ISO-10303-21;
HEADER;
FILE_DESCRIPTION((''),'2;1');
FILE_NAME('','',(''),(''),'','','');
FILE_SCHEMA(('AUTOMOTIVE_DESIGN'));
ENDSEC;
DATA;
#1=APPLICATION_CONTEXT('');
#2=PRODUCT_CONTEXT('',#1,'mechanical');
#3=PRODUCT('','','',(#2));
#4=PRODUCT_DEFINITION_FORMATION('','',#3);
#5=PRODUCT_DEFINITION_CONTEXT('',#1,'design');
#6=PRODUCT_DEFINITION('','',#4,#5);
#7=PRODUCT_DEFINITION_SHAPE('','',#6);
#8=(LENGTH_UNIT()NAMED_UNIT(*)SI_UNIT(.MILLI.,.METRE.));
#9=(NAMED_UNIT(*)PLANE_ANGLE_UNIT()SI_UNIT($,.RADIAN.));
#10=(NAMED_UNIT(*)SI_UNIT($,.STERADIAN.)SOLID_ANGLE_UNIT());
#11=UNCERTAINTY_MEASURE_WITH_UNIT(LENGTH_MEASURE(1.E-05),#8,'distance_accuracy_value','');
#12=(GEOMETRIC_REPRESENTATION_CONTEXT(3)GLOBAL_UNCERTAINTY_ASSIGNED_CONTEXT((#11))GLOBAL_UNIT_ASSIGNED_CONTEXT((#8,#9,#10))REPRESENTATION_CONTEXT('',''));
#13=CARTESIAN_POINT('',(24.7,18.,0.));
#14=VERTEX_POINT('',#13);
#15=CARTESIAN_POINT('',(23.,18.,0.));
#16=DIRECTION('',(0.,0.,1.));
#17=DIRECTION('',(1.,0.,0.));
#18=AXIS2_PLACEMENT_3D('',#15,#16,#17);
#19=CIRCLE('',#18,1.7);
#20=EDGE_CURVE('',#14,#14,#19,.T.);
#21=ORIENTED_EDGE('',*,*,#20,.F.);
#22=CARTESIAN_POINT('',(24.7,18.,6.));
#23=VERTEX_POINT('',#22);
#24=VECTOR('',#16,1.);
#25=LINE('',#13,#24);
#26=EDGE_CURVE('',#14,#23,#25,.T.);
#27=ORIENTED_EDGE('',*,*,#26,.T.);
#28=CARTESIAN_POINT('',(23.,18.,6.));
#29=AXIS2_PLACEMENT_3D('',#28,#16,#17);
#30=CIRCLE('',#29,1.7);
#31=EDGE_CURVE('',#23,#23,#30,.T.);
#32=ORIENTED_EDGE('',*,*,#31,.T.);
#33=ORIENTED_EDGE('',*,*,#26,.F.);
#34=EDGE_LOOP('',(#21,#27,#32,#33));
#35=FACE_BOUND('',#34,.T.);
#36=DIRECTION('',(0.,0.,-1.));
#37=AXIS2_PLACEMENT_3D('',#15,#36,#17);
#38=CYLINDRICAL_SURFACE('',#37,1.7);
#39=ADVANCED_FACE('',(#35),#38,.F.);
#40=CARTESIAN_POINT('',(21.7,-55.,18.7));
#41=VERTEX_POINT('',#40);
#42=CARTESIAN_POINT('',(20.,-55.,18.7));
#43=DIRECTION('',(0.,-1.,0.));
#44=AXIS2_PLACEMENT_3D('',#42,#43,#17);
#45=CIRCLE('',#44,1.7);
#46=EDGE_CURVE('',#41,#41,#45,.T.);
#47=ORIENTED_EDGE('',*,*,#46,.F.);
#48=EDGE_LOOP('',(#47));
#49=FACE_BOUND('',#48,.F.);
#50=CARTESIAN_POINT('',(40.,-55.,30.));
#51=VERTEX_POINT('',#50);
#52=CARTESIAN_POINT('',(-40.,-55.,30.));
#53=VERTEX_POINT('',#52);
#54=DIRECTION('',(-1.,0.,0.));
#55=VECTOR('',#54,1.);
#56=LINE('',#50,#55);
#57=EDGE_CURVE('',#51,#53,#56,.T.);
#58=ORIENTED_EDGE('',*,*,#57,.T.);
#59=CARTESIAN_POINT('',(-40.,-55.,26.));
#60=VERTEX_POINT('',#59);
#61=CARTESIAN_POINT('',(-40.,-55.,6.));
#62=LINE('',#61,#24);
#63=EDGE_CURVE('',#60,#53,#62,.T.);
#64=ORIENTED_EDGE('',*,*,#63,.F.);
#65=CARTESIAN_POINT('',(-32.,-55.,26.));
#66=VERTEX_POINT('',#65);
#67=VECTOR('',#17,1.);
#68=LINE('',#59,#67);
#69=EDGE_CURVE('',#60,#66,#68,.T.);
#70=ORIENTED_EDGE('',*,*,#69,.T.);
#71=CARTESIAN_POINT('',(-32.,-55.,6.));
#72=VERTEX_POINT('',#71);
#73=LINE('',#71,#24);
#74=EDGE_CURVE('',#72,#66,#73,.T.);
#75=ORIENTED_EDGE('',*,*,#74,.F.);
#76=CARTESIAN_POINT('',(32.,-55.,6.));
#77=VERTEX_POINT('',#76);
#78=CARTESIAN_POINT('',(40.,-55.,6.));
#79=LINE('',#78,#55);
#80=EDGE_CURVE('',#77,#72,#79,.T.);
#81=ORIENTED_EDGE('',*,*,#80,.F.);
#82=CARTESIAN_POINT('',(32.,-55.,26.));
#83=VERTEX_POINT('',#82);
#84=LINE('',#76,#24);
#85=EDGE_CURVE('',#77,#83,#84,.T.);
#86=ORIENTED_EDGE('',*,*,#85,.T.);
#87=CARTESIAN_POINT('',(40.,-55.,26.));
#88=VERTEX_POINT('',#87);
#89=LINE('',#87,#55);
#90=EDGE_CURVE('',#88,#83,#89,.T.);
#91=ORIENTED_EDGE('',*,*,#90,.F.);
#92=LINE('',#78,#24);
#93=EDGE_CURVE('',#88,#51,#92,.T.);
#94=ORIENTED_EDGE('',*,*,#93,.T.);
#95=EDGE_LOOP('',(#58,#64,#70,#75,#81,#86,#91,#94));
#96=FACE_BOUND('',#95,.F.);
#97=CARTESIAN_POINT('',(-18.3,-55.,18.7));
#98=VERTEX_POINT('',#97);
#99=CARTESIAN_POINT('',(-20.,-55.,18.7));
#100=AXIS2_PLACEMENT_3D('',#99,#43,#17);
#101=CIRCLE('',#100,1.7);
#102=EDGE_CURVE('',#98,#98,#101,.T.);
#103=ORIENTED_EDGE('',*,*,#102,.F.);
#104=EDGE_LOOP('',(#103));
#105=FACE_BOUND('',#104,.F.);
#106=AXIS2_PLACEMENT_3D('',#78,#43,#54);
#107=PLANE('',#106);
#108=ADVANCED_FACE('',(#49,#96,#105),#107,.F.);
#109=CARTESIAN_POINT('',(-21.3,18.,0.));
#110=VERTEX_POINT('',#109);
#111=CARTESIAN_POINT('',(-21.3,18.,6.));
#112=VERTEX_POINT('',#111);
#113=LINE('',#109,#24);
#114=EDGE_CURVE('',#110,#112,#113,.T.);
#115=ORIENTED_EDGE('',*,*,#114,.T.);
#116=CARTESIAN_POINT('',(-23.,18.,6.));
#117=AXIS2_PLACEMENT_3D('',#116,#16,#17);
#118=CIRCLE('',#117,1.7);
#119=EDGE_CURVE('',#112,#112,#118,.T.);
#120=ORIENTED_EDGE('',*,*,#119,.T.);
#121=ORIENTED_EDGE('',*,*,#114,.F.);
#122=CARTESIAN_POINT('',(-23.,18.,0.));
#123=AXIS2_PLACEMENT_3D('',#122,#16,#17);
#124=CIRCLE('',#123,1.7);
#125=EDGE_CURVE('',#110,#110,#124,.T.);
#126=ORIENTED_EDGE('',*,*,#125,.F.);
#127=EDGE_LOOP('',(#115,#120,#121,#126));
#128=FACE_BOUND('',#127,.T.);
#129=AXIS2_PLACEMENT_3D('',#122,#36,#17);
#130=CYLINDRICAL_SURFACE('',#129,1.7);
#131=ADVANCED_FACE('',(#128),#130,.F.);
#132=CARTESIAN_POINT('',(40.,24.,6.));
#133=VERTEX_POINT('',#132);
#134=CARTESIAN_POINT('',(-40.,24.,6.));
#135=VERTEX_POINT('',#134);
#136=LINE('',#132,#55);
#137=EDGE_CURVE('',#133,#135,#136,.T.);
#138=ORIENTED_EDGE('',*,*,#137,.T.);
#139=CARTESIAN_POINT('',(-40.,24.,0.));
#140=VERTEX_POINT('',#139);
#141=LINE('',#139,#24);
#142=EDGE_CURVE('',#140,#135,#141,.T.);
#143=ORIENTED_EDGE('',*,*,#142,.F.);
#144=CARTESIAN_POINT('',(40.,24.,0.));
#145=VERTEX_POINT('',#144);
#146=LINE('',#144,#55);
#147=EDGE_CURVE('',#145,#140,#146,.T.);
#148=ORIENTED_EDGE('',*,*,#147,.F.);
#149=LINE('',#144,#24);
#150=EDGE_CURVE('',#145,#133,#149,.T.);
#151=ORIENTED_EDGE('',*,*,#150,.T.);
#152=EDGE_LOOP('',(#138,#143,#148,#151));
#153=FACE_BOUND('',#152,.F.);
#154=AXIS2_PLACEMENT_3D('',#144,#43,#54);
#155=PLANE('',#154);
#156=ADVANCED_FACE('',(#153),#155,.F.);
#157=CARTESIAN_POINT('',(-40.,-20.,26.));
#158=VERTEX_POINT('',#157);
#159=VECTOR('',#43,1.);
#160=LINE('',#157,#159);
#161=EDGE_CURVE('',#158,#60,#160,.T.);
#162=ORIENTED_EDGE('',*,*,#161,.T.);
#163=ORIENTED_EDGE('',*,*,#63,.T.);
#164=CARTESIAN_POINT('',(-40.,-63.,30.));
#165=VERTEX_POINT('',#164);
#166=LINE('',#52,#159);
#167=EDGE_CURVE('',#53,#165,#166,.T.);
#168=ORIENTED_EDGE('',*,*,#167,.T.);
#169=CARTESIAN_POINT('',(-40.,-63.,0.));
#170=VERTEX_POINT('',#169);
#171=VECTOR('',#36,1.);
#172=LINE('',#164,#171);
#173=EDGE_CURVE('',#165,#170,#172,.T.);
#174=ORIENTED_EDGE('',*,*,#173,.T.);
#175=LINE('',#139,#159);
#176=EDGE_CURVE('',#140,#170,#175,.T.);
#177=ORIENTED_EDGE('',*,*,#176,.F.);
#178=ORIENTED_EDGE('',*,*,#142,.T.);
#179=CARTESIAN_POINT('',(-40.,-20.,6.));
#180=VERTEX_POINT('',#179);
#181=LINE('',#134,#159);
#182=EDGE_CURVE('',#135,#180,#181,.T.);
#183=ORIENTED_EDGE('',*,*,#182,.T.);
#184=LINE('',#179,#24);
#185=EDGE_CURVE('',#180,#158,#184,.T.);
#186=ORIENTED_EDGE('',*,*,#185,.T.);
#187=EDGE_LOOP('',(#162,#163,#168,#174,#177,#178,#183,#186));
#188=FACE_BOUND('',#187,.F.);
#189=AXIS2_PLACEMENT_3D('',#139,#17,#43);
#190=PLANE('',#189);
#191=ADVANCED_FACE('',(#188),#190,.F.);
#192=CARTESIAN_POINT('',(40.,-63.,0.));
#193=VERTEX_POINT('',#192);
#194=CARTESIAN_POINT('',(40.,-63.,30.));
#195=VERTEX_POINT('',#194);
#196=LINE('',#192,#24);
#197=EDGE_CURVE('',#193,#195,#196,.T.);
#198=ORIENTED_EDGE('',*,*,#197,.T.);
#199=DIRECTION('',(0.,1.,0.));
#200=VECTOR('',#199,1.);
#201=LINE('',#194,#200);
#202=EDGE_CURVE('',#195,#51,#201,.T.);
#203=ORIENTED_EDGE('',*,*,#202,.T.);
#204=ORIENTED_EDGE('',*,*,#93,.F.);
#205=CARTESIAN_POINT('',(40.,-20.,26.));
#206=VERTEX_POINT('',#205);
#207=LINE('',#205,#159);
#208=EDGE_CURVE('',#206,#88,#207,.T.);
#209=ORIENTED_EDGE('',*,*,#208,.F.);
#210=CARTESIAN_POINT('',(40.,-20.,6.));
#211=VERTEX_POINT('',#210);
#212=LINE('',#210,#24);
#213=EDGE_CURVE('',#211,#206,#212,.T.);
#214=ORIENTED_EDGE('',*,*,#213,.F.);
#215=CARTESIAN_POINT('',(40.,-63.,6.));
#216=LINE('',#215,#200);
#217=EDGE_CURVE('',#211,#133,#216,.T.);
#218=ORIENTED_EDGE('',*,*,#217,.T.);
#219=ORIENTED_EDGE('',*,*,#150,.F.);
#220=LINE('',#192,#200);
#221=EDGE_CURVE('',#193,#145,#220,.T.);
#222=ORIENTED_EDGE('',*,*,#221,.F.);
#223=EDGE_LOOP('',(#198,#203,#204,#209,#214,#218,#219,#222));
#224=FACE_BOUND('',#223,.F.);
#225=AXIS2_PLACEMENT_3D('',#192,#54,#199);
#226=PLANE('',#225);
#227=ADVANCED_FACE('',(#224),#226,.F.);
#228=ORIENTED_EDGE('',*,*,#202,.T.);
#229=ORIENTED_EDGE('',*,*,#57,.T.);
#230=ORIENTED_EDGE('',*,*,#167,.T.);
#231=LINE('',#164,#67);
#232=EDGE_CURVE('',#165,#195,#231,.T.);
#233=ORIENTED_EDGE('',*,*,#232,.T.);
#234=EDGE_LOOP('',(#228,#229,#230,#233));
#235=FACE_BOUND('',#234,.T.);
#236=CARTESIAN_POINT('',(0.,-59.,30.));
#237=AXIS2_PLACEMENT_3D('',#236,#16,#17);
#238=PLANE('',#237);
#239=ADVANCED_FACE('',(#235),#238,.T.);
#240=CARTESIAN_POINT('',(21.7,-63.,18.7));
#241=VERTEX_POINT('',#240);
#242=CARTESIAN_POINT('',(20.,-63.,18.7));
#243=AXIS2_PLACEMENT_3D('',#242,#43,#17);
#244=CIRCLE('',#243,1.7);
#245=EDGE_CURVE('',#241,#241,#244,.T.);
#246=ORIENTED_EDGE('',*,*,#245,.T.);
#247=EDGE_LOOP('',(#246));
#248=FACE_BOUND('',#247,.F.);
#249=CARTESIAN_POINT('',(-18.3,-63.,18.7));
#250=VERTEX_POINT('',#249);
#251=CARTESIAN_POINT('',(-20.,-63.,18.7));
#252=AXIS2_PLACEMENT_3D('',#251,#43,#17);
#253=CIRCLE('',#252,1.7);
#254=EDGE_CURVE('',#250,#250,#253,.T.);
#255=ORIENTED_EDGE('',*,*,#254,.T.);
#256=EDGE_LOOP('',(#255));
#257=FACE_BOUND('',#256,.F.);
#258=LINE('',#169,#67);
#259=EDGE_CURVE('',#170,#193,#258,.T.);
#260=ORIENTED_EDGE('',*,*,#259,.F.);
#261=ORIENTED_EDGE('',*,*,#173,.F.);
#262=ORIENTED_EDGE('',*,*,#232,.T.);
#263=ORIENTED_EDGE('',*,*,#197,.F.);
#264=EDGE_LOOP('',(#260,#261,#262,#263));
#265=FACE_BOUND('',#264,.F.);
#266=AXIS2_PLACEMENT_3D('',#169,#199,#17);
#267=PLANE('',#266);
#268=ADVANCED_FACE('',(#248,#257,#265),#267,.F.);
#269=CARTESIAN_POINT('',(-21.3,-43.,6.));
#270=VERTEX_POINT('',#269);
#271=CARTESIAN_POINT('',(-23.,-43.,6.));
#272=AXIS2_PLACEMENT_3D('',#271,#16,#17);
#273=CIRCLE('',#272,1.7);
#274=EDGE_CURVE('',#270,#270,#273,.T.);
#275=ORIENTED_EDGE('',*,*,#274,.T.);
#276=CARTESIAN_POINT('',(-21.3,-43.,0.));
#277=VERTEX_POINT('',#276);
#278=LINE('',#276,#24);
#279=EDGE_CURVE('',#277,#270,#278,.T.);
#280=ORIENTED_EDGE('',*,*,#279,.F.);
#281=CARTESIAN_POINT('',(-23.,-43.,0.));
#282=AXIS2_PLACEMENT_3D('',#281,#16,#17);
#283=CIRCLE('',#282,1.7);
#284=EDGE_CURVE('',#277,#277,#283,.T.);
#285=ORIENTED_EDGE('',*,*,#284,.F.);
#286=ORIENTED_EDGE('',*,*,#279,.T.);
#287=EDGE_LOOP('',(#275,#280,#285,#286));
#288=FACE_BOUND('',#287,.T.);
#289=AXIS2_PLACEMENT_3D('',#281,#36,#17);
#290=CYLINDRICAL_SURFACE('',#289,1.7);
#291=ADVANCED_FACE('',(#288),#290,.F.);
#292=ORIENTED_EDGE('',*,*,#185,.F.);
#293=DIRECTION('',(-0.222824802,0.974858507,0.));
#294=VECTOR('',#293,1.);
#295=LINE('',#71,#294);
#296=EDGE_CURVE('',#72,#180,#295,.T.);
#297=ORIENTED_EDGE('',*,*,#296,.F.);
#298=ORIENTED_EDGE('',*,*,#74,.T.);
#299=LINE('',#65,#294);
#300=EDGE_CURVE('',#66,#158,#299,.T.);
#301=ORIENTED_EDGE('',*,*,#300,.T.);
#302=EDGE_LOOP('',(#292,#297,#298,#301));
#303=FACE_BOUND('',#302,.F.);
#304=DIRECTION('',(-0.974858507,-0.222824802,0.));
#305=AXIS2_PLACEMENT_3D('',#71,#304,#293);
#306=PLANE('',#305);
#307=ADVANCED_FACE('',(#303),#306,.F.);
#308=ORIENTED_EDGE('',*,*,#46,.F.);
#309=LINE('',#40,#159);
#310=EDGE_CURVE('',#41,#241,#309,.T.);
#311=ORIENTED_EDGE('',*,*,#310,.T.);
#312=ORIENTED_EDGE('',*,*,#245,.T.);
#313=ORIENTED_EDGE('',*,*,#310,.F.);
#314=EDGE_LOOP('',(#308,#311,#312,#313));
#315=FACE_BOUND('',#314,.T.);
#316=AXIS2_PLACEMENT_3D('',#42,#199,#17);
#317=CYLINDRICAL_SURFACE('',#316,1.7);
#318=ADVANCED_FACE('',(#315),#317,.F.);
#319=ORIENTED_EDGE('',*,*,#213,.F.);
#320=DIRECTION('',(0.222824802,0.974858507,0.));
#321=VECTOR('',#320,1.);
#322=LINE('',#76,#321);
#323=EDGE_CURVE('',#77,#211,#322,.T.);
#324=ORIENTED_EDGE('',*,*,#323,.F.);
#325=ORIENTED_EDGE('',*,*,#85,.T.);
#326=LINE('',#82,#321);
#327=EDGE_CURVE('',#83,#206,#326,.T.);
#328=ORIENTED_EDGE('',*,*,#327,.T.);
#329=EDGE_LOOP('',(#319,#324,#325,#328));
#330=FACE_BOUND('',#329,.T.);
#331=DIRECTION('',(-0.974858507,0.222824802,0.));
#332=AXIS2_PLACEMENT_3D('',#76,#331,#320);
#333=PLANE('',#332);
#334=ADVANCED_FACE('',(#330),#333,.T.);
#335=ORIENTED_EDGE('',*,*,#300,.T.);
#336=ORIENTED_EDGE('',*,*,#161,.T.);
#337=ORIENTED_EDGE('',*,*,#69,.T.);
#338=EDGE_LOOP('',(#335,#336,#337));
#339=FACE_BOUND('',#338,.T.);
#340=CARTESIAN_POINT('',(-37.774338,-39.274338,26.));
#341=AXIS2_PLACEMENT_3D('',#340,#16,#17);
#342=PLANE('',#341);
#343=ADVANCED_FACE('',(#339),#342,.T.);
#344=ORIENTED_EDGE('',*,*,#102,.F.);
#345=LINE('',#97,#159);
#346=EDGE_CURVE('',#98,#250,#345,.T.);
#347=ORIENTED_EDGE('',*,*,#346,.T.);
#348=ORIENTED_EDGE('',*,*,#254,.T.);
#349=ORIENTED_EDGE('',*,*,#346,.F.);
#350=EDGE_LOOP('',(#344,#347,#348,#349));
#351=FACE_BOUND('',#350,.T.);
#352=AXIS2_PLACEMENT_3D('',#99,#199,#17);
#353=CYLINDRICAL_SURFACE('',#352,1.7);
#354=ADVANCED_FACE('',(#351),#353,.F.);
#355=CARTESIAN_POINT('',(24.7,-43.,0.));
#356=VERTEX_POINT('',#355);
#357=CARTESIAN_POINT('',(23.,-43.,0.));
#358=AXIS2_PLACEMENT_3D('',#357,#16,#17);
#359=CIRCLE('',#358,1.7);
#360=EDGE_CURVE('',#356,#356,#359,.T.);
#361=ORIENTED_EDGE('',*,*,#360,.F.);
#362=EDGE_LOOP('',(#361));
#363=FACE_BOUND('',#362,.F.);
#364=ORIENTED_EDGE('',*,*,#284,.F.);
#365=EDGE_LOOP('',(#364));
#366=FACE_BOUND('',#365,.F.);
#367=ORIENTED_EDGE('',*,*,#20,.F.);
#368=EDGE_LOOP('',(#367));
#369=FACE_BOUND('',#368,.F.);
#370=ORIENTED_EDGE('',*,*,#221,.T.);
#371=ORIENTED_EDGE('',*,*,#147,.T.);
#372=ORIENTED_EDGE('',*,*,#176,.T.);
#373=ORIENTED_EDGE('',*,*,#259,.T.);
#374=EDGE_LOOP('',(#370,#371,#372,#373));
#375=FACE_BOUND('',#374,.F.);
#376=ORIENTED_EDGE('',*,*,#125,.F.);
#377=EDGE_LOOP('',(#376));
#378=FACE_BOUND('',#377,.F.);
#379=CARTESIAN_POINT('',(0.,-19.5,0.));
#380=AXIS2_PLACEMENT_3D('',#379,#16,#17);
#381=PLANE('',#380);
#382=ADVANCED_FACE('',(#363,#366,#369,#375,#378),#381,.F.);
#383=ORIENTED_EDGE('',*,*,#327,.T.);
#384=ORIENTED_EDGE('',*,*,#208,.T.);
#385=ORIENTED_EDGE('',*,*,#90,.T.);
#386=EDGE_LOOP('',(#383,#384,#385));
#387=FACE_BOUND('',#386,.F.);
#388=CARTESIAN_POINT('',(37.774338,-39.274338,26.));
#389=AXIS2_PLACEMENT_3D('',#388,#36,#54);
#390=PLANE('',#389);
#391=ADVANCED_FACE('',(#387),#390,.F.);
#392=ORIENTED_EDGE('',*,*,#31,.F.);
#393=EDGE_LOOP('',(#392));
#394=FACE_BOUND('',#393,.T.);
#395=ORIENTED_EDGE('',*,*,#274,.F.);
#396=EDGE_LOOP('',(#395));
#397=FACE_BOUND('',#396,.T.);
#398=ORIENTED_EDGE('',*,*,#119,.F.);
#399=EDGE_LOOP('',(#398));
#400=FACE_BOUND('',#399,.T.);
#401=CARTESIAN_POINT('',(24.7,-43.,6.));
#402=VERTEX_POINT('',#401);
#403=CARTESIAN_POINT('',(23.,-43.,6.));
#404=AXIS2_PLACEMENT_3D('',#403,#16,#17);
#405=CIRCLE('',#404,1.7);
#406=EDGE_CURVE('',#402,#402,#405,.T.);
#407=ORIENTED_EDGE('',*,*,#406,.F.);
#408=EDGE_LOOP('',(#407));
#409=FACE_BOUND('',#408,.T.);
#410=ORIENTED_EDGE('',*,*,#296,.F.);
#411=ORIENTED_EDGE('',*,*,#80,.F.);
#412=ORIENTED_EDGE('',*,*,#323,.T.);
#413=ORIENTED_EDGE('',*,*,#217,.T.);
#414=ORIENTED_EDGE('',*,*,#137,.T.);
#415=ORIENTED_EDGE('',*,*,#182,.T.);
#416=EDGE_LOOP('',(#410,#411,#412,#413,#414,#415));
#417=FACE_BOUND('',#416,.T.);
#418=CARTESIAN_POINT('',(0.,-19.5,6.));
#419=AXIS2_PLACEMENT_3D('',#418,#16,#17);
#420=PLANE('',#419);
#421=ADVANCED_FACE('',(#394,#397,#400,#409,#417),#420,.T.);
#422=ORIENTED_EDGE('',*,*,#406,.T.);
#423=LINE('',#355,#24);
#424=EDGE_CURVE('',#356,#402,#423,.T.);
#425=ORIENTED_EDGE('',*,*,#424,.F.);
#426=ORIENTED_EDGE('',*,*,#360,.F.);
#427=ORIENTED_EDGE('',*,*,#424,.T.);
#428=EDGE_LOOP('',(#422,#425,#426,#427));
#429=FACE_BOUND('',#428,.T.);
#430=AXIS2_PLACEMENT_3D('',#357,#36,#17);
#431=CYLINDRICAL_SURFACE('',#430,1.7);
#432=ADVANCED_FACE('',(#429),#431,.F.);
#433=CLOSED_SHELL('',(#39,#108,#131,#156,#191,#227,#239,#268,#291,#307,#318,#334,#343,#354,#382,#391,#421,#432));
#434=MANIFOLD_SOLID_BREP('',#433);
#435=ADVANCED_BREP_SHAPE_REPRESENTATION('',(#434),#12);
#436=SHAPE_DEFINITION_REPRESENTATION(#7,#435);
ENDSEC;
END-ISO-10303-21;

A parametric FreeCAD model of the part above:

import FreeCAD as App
import Part
import Sketcher

V = App.Vector


def add_polygon(sketch, points):
    """Adds a closed chain of lines whose ends are joined by coincident constraints."""
    first, n = sketch.GeometryCount, len(points)
    for a, b in zip(points, points[1:] + points[:1]):
        sketch.addGeometry(Part.LineSegment(App.Vector(*a, 0), App.Vector(*b, 0)), False)
    for i in range(n):
        sketch.addConstraint(Sketcher.Constraint("Coincident", first + i, 2, first + (i + 1) % n, 1))

doc = App.newDocument("Part")
body = doc.addObject("PartDesign::Body", "Body")

sketch1 = body.newObject("Sketcher::SketchObject", "Sketch")
sketch1.AttachmentSupport = (doc.getObject("XY_Plane"), [""])
sketch1.MapMode = "FlatFace"
add_polygon(sketch1, [(-40, 24), (-40, -63), (40, -63), (40, 24)])
sketch1.addGeometry(Part.Circle(V(-23, -43, 0), V(0, 0, 1), 1.7), False)
sketch1.addGeometry(Part.Circle(V(23, -43, 0), V(0, 0, 1), 1.7), False)
sketch1.addGeometry(Part.Circle(V(-23, 18, 0), V(0, 0, 1), 1.7), False)
sketch1.addGeometry(Part.Circle(V(23, 18, 0), V(0, 0, 1), 1.7), False)
sketch1.addConstraint(Sketcher.Constraint("Vertical", 0))
sketch1.addConstraint(Sketcher.Constraint("Horizontal", 1))
sketch1.addConstraint(Sketcher.Constraint("Vertical", 2))
sketch1.addConstraint(Sketcher.Constraint("Horizontal", 3))
sketch1.addConstraint(Sketcher.Constraint("Equal", 4, 5))
sketch1.addConstraint(Sketcher.Constraint("Equal", 5, 6))
sketch1.addConstraint(Sketcher.Constraint("Equal", 6, 7))
sketch1.addConstraint(Sketcher.Constraint("Symmetric", 4, 3, 5, 3, -2))
sketch1.addConstraint(Sketcher.Constraint("Symmetric", 6, 3, 7, 3, -2))
sketch1.addConstraint(Sketcher.Constraint("Vertical", 4, 3, 6, 3))
sketch1.addConstraint(Sketcher.Constraint("Diameter", 4, 3.4))
sketch1.addConstraint(Sketcher.Constraint("DistanceX", 1, 1, 1, 2, 80.0))
sketch1.addConstraint(Sketcher.Constraint("DistanceY", 0, 2, 0, 1, 87.0))
sketch1.addConstraint(Sketcher.Constraint("DistanceX", 4, 3, -1, 1, 23.0))
sketch1.addConstraint(Sketcher.Constraint("DistanceY", 4, 3, -1, 1, 43.0))
sketch1.addConstraint(Sketcher.Constraint("DistanceY", -1, 1, 6, 3, 18.0))
sketch1.addConstraint(Sketcher.Constraint("DistanceX", 0, 2, -1, 1, 40.0))
sketch1.addConstraint(Sketcher.Constraint("DistanceY", 0, 2, -1, 1, 63.0))
pad1 = body.newObject("PartDesign::Pad", "Pad")
pad1.Profile = sketch1
pad1.Length = 6

sketch2 = body.newObject("Sketcher::SketchObject", "Sketch001")
sketch2.AttachmentSupport = (doc.getObject("XY_Plane"), [""])
sketch2.MapMode = "FlatFace"
sketch2.AttachmentOffset = App.Placement(V(0, 0, 6), App.Rotation())
add_polygon(sketch2, [(-40, -55), (-40, -63), (40, -63), (40, -55)])
sketch2.addConstraint(Sketcher.Constraint("Vertical", 0))
sketch2.addConstraint(Sketcher.Constraint("Horizontal", 1))
sketch2.addConstraint(Sketcher.Constraint("Vertical", 2))
sketch2.addConstraint(Sketcher.Constraint("Horizontal", 3))
sketch2.addConstraint(Sketcher.Constraint("DistanceX", 1, 1, 1, 2, 80.0))
sketch2.addConstraint(Sketcher.Constraint("DistanceY", 0, 2, 0, 1, 8.0))
sketch2.addConstraint(Sketcher.Constraint("DistanceX", 0, 2, -1, 1, 40.0))
sketch2.addConstraint(Sketcher.Constraint("DistanceY", 0, 2, -1, 1, 63.0))
pad2 = body.newObject("PartDesign::Pad", "Pad001")
pad2.Profile = sketch2
pad2.Length = 24

sketch3 = body.newObject("Sketcher::SketchObject", "Sketch002")
sketch3.AttachmentSupport = (doc.getObject("XY_Plane"), [""])
sketch3.MapMode = "FlatFace"
sketch3.AttachmentOffset = App.Placement(V(0, 0, 6), App.Rotation())
add_polygon(sketch3, [(-40, -20), (-40, -55), (-32, -55)])
sketch3.addConstraint(Sketcher.Constraint("Vertical", 0))
sketch3.addConstraint(Sketcher.Constraint("Horizontal", 1))
sketch3.addConstraint(Sketcher.Constraint("DistanceX", 1, 1, 1, 2, 8.0))
sketch3.addConstraint(Sketcher.Constraint("DistanceY", 0, 2, 0, 1, 35.0))
sketch3.addConstraint(Sketcher.Constraint("DistanceX", 0, 2, -1, 1, 40.0))
sketch3.addConstraint(Sketcher.Constraint("DistanceY", 0, 2, -1, 1, 55.0))
pad3 = body.newObject("PartDesign::Pad", "Pad002")
pad3.Profile = sketch3
pad3.Length = 20

sketch4 = body.newObject("Sketcher::SketchObject", "Sketch003")
sketch4.AttachmentSupport = (doc.getObject("XY_Plane"), [""])
sketch4.MapMode = "FlatFace"
sketch4.AttachmentOffset = App.Placement(V(0, 0, 6), App.Rotation())
add_polygon(sketch4, [(32, -55), (40, -55), (40, -20)])
sketch4.addConstraint(Sketcher.Constraint("Horizontal", 0))
sketch4.addConstraint(Sketcher.Constraint("Vertical", 1))
sketch4.addConstraint(Sketcher.Constraint("DistanceX", 0, 1, 0, 2, 8.0))
sketch4.addConstraint(Sketcher.Constraint("DistanceY", 1, 1, 1, 2, 35.0))
sketch4.addConstraint(Sketcher.Constraint("DistanceX", -1, 1, 0, 2, 40.0))
sketch4.addConstraint(Sketcher.Constraint("DistanceY", 0, 2, -1, 1, 55.0))
pad4 = body.newObject("PartDesign::Pad", "Pad003")
pad4.Profile = sketch4
pad4.Length = 20

sketch5 = body.newObject("Sketcher::SketchObject", "Sketch004")
sketch5.AttachmentSupport = (doc.getObject("XZ_Plane"), [""])
sketch5.MapMode = "FlatFace"
sketch5.AttachmentOffset = App.Placement(V(0, 0, 55), App.Rotation())
sketch5.addGeometry(Part.Circle(V(-20, 18.7, 0), V(0, 0, 1), 1.7), False)
sketch5.addGeometry(Part.Circle(V(20, 18.7, 0), V(0, 0, 1), 1.7), False)
sketch5.addConstraint(Sketcher.Constraint("Equal", 0, 1))
sketch5.addConstraint(Sketcher.Constraint("Symmetric", 0, 3, 1, 3, -2))
sketch5.addConstraint(Sketcher.Constraint("Diameter", 0, 3.4))
sketch5.addConstraint(Sketcher.Constraint("DistanceX", 0, 3, -1, 1, 20.0))
sketch5.addConstraint(Sketcher.Constraint("DistanceY", -1, 1, 0, 3, 18.7))
pocket1 = body.newObject("PartDesign::Pocket", "Pocket")
pocket1.Profile = sketch5
pocket1.Length = 8
pocket1.Reversed = True

doc.recompute()
